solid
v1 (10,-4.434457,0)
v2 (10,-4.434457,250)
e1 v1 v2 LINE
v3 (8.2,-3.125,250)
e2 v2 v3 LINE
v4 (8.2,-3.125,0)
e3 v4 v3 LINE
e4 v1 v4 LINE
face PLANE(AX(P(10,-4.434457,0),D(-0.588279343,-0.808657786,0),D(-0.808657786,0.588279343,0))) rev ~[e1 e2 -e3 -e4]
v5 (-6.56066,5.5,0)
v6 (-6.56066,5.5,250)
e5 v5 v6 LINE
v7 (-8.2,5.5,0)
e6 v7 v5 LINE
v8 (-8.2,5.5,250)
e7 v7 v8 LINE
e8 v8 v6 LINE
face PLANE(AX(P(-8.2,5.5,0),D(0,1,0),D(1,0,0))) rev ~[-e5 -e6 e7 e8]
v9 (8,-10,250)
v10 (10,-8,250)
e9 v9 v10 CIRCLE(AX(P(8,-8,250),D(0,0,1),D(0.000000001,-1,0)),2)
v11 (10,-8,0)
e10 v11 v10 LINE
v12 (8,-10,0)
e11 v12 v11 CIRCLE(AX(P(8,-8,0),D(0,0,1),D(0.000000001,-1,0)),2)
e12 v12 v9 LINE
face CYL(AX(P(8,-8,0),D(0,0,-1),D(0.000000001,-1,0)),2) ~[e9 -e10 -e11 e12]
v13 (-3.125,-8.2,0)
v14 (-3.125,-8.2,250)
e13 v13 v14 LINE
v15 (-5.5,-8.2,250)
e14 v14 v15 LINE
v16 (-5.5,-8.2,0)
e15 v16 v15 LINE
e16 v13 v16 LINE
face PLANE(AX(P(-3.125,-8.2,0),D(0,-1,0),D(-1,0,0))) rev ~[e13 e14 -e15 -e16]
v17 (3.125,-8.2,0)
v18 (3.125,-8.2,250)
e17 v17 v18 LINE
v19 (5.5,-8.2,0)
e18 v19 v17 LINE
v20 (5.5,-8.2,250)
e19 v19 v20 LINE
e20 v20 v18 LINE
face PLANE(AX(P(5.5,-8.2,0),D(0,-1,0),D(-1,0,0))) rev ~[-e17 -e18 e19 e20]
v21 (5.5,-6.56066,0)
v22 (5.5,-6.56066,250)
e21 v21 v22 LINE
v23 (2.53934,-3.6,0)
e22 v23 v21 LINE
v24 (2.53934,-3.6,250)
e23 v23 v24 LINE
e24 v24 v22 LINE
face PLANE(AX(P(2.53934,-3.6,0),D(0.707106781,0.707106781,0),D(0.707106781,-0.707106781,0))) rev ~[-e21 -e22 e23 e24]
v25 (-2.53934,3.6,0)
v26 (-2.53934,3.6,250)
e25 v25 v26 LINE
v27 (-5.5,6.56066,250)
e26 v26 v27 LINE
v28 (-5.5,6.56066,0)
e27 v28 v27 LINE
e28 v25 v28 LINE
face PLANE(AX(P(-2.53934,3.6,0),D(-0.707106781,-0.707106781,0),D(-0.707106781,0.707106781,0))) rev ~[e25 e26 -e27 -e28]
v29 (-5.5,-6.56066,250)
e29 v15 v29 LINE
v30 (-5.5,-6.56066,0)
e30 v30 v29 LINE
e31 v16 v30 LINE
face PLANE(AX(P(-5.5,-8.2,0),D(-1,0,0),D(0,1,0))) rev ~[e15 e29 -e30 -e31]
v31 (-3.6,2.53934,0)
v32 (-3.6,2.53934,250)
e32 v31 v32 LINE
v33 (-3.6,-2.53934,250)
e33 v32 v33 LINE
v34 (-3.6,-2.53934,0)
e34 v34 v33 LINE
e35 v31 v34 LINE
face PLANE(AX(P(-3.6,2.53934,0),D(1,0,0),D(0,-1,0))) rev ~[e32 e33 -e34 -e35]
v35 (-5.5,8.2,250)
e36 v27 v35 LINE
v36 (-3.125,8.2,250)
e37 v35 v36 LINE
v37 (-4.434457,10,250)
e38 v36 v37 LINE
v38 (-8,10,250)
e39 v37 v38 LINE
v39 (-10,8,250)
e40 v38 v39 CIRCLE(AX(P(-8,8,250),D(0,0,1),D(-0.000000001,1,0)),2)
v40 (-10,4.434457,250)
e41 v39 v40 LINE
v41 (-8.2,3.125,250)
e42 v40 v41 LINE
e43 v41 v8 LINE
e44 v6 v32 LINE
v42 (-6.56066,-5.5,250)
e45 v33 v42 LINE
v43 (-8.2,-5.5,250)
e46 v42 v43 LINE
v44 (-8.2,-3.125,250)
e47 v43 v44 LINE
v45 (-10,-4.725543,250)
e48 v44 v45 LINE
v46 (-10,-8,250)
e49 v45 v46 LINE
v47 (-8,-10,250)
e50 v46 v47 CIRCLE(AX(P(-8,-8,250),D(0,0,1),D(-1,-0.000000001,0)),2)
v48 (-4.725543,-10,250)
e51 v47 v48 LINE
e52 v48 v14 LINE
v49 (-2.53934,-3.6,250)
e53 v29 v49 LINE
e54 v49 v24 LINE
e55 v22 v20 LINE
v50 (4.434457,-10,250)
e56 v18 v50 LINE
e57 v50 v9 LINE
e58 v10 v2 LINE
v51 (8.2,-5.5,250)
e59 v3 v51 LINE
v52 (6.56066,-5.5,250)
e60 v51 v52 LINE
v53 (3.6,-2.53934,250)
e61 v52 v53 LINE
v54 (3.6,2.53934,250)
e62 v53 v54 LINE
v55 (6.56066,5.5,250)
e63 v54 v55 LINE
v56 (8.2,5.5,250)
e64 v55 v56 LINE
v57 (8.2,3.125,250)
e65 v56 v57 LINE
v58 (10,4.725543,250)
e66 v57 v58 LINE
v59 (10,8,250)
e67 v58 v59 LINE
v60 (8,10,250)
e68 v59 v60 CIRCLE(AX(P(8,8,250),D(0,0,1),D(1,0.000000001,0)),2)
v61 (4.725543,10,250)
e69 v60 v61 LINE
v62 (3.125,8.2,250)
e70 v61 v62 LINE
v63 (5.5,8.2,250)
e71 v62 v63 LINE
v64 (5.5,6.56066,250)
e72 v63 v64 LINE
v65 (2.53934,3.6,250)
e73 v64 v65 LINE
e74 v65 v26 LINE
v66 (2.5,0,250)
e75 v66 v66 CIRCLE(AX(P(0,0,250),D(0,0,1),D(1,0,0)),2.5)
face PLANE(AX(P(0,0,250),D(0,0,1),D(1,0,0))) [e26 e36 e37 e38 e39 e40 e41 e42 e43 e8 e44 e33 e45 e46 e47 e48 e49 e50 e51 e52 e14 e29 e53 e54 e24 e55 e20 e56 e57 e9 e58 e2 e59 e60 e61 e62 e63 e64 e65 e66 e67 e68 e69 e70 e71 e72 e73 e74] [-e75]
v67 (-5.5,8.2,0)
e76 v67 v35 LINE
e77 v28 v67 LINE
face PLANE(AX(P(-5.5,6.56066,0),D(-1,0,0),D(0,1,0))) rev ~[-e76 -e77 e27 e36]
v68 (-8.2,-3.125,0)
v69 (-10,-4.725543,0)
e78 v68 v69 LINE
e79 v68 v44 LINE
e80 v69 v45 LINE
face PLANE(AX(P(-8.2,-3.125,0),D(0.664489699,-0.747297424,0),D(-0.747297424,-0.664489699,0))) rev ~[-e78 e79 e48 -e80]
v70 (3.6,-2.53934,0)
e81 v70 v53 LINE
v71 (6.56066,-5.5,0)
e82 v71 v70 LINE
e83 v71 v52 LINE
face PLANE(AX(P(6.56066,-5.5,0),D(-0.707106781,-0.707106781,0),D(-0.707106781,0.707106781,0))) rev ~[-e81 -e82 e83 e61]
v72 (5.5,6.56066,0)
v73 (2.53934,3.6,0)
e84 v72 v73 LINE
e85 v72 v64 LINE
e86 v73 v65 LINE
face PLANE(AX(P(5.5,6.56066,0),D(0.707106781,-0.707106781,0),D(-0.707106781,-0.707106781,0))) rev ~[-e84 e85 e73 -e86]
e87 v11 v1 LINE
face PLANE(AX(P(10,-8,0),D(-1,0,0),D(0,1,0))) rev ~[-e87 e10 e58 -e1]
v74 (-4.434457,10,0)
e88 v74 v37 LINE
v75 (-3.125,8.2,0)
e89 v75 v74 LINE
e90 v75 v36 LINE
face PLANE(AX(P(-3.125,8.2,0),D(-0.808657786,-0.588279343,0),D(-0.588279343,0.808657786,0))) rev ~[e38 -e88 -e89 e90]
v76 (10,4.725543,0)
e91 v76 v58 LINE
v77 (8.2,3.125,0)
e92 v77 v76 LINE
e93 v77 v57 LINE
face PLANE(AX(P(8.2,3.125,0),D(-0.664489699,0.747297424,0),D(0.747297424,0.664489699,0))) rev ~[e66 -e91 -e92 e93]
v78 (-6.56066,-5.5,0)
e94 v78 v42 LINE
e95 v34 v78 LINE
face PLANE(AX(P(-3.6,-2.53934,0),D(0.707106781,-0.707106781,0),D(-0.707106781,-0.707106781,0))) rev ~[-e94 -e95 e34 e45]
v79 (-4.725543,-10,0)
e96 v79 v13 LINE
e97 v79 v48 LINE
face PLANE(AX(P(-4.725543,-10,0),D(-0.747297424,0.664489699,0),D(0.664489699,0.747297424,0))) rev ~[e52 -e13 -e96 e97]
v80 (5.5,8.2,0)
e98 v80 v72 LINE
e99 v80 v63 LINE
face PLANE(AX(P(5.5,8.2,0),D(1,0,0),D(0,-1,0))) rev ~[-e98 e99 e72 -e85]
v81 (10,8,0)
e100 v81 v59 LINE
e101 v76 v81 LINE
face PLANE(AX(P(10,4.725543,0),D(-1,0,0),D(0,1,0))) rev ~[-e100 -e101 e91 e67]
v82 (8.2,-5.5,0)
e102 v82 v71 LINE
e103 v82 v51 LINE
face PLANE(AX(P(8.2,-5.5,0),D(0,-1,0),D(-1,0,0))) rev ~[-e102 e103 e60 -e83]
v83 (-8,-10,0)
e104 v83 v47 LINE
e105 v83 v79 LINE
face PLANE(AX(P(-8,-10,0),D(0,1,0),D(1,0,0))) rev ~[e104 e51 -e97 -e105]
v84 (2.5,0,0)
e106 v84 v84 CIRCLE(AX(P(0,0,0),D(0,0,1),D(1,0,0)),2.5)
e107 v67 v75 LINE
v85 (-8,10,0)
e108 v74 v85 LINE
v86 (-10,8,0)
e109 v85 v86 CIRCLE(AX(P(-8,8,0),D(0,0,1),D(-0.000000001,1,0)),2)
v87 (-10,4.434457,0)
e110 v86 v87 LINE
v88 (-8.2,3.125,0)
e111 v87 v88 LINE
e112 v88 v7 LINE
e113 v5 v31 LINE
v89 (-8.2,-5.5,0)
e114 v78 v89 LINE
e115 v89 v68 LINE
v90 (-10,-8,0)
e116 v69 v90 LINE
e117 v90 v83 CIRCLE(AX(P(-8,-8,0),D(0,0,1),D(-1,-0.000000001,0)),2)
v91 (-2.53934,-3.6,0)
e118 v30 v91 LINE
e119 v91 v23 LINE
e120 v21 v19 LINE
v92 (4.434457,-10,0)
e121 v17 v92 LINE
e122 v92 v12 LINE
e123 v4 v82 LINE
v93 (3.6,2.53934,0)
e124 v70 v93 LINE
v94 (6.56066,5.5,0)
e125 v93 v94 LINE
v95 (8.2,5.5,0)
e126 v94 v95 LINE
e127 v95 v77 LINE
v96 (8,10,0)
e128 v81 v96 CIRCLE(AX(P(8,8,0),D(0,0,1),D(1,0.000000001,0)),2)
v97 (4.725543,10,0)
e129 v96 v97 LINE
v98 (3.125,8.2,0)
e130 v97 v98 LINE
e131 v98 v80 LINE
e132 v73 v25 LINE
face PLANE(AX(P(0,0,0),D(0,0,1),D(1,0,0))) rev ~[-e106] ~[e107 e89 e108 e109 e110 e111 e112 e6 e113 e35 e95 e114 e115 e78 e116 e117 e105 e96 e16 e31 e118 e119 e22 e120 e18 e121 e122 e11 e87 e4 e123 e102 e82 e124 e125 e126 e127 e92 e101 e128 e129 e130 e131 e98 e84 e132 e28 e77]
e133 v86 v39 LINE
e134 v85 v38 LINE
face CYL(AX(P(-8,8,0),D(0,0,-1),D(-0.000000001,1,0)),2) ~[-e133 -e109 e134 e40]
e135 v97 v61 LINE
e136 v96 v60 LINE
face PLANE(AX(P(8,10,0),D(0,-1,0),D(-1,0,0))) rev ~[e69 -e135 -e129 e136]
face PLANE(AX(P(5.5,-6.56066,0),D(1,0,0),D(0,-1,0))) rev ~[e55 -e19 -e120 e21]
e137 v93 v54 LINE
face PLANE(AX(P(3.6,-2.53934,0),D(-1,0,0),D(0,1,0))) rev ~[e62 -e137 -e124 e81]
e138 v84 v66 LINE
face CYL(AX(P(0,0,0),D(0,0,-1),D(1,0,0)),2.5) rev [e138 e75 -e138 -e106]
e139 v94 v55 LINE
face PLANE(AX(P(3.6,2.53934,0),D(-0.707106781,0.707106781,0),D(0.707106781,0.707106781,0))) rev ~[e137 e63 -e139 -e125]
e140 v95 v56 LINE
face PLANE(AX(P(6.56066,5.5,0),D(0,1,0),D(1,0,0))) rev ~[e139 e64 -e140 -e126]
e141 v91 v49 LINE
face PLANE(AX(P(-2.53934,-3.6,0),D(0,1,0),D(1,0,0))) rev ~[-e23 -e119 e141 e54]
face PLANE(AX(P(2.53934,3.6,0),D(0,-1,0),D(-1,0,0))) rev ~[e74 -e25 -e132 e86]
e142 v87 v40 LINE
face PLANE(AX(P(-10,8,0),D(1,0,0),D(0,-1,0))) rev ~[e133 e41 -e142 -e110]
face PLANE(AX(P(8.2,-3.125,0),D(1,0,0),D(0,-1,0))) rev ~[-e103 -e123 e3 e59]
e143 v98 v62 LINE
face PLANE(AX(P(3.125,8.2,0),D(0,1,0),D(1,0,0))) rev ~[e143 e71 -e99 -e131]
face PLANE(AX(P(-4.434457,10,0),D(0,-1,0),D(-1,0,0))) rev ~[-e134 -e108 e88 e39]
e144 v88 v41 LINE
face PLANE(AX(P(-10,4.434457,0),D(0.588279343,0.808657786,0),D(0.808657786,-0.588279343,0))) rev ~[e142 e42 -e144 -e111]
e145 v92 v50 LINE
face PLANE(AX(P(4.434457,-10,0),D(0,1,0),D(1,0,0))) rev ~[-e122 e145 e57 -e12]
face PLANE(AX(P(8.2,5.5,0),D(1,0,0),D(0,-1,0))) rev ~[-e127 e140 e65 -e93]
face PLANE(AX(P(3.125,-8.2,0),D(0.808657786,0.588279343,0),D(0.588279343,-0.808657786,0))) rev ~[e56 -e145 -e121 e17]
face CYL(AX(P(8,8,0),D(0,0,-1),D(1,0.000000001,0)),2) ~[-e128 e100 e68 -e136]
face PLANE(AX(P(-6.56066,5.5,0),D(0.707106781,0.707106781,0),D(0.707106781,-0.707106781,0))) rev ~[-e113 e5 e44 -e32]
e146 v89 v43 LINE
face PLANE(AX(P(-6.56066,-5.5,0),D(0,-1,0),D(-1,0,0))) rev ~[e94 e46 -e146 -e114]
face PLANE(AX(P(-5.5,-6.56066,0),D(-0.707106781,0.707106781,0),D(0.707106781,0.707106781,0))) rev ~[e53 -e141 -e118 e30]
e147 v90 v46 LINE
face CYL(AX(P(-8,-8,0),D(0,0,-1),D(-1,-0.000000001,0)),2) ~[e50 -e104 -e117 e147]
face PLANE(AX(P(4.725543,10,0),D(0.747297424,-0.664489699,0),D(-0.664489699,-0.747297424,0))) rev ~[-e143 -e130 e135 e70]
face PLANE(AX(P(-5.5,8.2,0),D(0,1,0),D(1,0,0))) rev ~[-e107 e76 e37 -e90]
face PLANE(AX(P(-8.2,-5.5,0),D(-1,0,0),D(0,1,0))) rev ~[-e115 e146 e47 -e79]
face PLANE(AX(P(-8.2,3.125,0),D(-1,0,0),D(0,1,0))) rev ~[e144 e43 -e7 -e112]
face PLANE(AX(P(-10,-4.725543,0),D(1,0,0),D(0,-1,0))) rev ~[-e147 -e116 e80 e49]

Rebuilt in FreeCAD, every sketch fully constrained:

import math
import FreeCAD as App
import Part
import Sketcher

V = App.Vector
Q = App.Units.Quantity

doc = App.newDocument("Part")
body = doc.addObject("PartDesign::Body", "Body")

# Sketch on XY plane
sketch1 = doc.addObject("Sketcher::SketchObject", "Sketch")
body.addObject(sketch1)
sketch1.AttachmentSupport = (doc.XY_Plane, [""])
sketch1.MapMode = "FlatFace"
sketch1.addGeometry([
    Part.LineSegment(V(-4.725543, -10, 0), V(-3.125, -8.2, 0)),  # 0
    Part.LineSegment(V(-3.125, -8.2, 0), V(-5.5, -8.2, 0)),  # 1
    Part.LineSegment(V(-5.5, -8.2, 0), V(-5.5, -6.56066, 0)),  # 2
    Part.LineSegment(V(-5.5, -6.56066, 0), V(-2.53934, -3.6, 0)),  # 3
    Part.LineSegment(V(-2.53934, -3.6, 0), V(2.53934, -3.6, 0)),  # 4
    Part.LineSegment(V(2.53934, -3.6, 0), V(5.5, -6.56066, 0)),  # 5
    Part.LineSegment(V(5.5, -6.56066, 0), V(5.5, -8.2, 0)),  # 6
    Part.LineSegment(V(5.5, -8.2, 0), V(3.125, -8.2, 0)),  # 7
    Part.LineSegment(V(3.125, -8.2, 0), V(4.434457, -10, 0)),  # 8
    Part.LineSegment(V(4.434457, -10, 0), V(8, -10, 0)),  # 9
    Part.ArcOfCircle(Part.Circle(V(8, -8, 0), V(0, 0, 1), 2), math.radians(-90), math.radians(0)),  # 10
    Part.LineSegment(V(10, -8, 0), V(10, -4.434457, 0)),  # 11
    Part.LineSegment(V(10, -4.434457, 0), V(8.2, -3.125, 0)),  # 12
    Part.LineSegment(V(8.2, -3.125, 0), V(8.2, -5.5, 0)),  # 13
    Part.LineSegment(V(8.2, -5.5, 0), V(6.56066, -5.5, 0)),  # 14
    Part.LineSegment(V(6.56066, -5.5, 0), V(3.6, -2.53934, 0)),  # 15
    Part.LineSegment(V(3.6, -2.53934, 0), V(3.6, 2.53934, 0)),  # 16
    Part.LineSegment(V(3.6, 2.53934, 0), V(6.56066, 5.5, 0)),  # 17
    Part.LineSegment(V(6.56066, 5.5, 0), V(8.2, 5.5, 0)),  # 18
    Part.LineSegment(V(8.2, 5.5, 0), V(8.2, 3.125, 0)),  # 19
    Part.LineSegment(V(8.2, 3.125, 0), V(10, 4.725543, 0)),  # 20
    Part.LineSegment(V(10, 4.725543, 0), V(10, 8, 0)),  # 21
    Part.ArcOfCircle(Part.Circle(V(8, 8, 0), V(0, 0, 1), 2), math.radians(0), math.radians(90)),  # 22
    Part.LineSegment(V(8, 10, 0), V(4.725543, 10, 0)),  # 23
    Part.LineSegment(V(4.725543, 10, 0), V(3.125, 8.2, 0)),  # 24
    Part.LineSegment(V(3.125, 8.2, 0), V(5.5, 8.2, 0)),  # 25
    Part.LineSegment(V(5.5, 8.2, 0), V(5.5, 6.56066, 0)),  # 26
    Part.LineSegment(V(5.5, 6.56066, 0), V(2.53934, 3.6, 0)),  # 27
    Part.LineSegment(V(2.53934, 3.6, 0), V(-2.53934, 3.6, 0)),  # 28
    Part.LineSegment(V(-2.53934, 3.6, 0), V(-5.5, 6.56066, 0)),  # 29
    Part.LineSegment(V(-5.5, 6.56066, 0), V(-5.5, 8.2, 0)),  # 30
    Part.LineSegment(V(-5.5, 8.2, 0), V(-3.125, 8.2, 0)),  # 31
    Part.LineSegment(V(-3.125, 8.2, 0), V(-4.434457, 10, 0)),  # 32
    Part.LineSegment(V(-4.434457, 10, 0), V(-8, 10, 0)),  # 33
    Part.ArcOfCircle(Part.Circle(V(-8, 8, 0), V(0, 0, 1), 2), math.radians(90), math.radians(180)),  # 34
    Part.LineSegment(V(-10, 8, 0), V(-10, 4.434457, 0)),  # 35
    Part.LineSegment(V(-10, 4.434457, 0), V(-8.2, 3.125, 0)),  # 36
    Part.LineSegment(V(-8.2, 3.125, 0), V(-8.2, 5.5, 0)),  # 37
    Part.LineSegment(V(-8.2, 5.5, 0), V(-6.56066, 5.5, 0)),  # 38
    Part.LineSegment(V(-6.56066, 5.5, 0), V(-3.6, 2.53934, 0)),  # 39
    Part.LineSegment(V(-3.6, 2.53934, 0), V(-3.6, -2.53934, 0)),  # 40
    Part.LineSegment(V(-3.6, -2.53934, 0), V(-6.56066, -5.5, 0)),  # 41
    Part.LineSegment(V(-6.56066, -5.5, 0), V(-8.2, -5.5, 0)),  # 42
    Part.LineSegment(V(-8.2, -5.5, 0), V(-8.2, -3.125, 0)),  # 43
    Part.LineSegment(V(-8.2, -3.125, 0), V(-10, -4.725543, 0)),  # 44
    Part.LineSegment(V(-10, -4.725543, 0), V(-10, -8, 0)),  # 45
    Part.ArcOfCircle(Part.Circle(V(-8, -8, 0), V(0, 0, 1), 2), math.radians(-180), math.radians(-90)),  # 46
    Part.LineSegment(V(-8, -10, 0), V(-4.725543, -10, 0)),  # 47
    Part.Circle(V(0, 0, 0), V(0, 0, 1), 2.5),  # 48
], False)
sketch1.addConstraint([
    Sketcher.Constraint("Coincident", 0, 2, 1, 1),
    Sketcher.Constraint("Coincident", 1, 2, 2, 1),
    Sketcher.Constraint("Coincident", 2, 2, 3, 1),
    Sketcher.Constraint("Coincident", 3, 2, 4, 1),
    Sketcher.Constraint("Coincident", 4, 2, 5, 1),
    Sketcher.Constraint("Coincident", 5, 2, 6, 1),
    Sketcher.Constraint("Coincident", 6, 2, 7, 1),
    Sketcher.Constraint("Coincident", 7, 2, 8, 1),
    Sketcher.Constraint("Coincident", 8, 2, 9, 1),
    Sketcher.Constraint("Tangent", 9, 2, 10, 1),
    Sketcher.Constraint("Tangent", 10, 2, 11, 1),
    Sketcher.Constraint("Coincident", 11, 2, 12, 1),
    Sketcher.Constraint("Coincident", 12, 2, 13, 1),
    Sketcher.Constraint("Coincident", 13, 2, 14, 1),
    Sketcher.Constraint("Coincident", 14, 2, 15, 1),
    Sketcher.Constraint("Coincident", 15, 2, 16, 1),
    Sketcher.Constraint("Coincident", 16, 2, 17, 1),
    Sketcher.Constraint("Coincident", 17, 2, 18, 1),
    Sketcher.Constraint("Coincident", 18, 2, 19, 1),
    Sketcher.Constraint("Coincident", 19, 2, 20, 1),
    Sketcher.Constraint("Coincident", 20, 2, 21, 1),
    Sketcher.Constraint("Tangent", 21, 2, 22, 1),
    Sketcher.Constraint("Tangent", 22, 2, 23, 1),
    Sketcher.Constraint("Coincident", 23, 2, 24, 1),
    Sketcher.Constraint("Coincident", 24, 2, 25, 1),
    Sketcher.Constraint("Coincident", 25, 2, 26, 1),
    Sketcher.Constraint("Coincident", 26, 2, 27, 1),
    Sketcher.Constraint("Coincident", 27, 2, 28, 1),
    Sketcher.Constraint("Coincident", 28, 2, 29, 1),
    Sketcher.Constraint("Coincident", 29, 2, 30, 1),
    Sketcher.Constraint("Coincident", 30, 2, 31, 1),
    Sketcher.Constraint("Coincident", 31, 2, 32, 1),
    Sketcher.Constraint("Coincident", 32, 2, 33, 1),
    Sketcher.Constraint("Tangent", 33, 2, 34, 1),
    Sketcher.Constraint("Tangent", 34, 2, 35, 1),
    Sketcher.Constraint("Coincident", 35, 2, 36, 1),
    Sketcher.Constraint("Coincident", 36, 2, 37, 1),
    Sketcher.Constraint("Coincident", 37, 2, 38, 1),
    Sketcher.Constraint("Coincident", 38, 2, 39, 1),
    Sketcher.Constraint("Coincident", 39, 2, 40, 1),
    Sketcher.Constraint("Coincident", 40, 2, 41, 1),
    Sketcher.Constraint("Coincident", 41, 2, 42, 1),
    Sketcher.Constraint("Coincident", 42, 2, 43, 1),
    Sketcher.Constraint("Coincident", 43, 2, 44, 1),
    Sketcher.Constraint("Coincident", 44, 2, 45, 1),
    Sketcher.Constraint("Tangent", 45, 2, 46, 1),
    Sketcher.Constraint("Tangent", 46, 2, 47, 1),
    Sketcher.Constraint("Coincident", 47, 2, 0, 1),
    Sketcher.Constraint("Horizontal", 1),
    Sketcher.Constraint("Vertical", 2),
    Sketcher.Constraint("Horizontal", 4),
    Sketcher.Constraint("Vertical", 6),
    Sketcher.Constraint("Horizontal", 7),
    Sketcher.Constraint("Horizontal", 9),
    Sketcher.Constraint("Vertical", 11),
    Sketcher.Constraint("Vertical", 13),
    Sketcher.Constraint("Horizontal", 14),
    Sketcher.Constraint("Vertical", 16),
    Sketcher.Constraint("Horizontal", 18),
    Sketcher.Constraint("Vertical", 19),
    Sketcher.Constraint("Vertical", 21),
    Sketcher.Constraint("Horizontal", 23),
    Sketcher.Constraint("Horizontal", 25),
    Sketcher.Constraint("Vertical", 26),
    Sketcher.Constraint("Horizontal", 28),
    Sketcher.Constraint("Vertical", 30),
    Sketcher.Constraint("Horizontal", 31),
    Sketcher.Constraint("Horizontal", 33),
    Sketcher.Constraint("Vertical", 35),
    Sketcher.Constraint("Vertical", 37),
    Sketcher.Constraint("Horizontal", 38),
    Sketcher.Constraint("Vertical", 40),
    Sketcher.Constraint("Horizontal", 42),
    Sketcher.Constraint("Vertical", 43),
    Sketcher.Constraint("Vertical", 45),
    Sketcher.Constraint("Horizontal", 47),
    Sketcher.Constraint("Coincident", 48, 3, -1, 1),
    Sketcher.Constraint("Equal", 10, 22),
    Sketcher.Constraint("Equal", 22, 34),
    Sketcher.Constraint("Equal", 34, 46),
    Sketcher.Constraint("Symmetric", 10, 3, 34, 3, -1, 1),
    Sketcher.Constraint("Symmetric", 22, 3, 46, 3, -1, 1),
    Sketcher.Constraint("Symmetric", 0, 2, 24, 2, -1, 1),
    Sketcher.Constraint("Symmetric", 2, 2, 26, 2, -1, 1),
    Sketcher.Constraint("Symmetric", 3, 2, 27, 2, -1, 1),
    Sketcher.Constraint("Symmetric", 5, 2, 29, 2, -1, 1),
    Sketcher.Constraint("Symmetric", 7, 2, 31, 2, -1, 1),
    Sketcher.Constraint("Symmetric", 12, 2, 36, 2, -1, 1),
    Sketcher.Constraint("Symmetric", 14, 2, 38, 2, -1, 1),
    Sketcher.Constraint("Symmetric", 15, 2, 39, 2, -1, 1),
    Sketcher.Constraint("Symmetric", 17, 2, 41, 2, -1, 1),
    Sketcher.Constraint("Symmetric", 19, 2, 43, 2, -1, 1),
    Sketcher.Constraint("Symmetric", 22, 3, 34, 3, -2),
    Sketcher.Constraint("Symmetric", 2, 2, 5, 2, -2),
    Sketcher.Constraint("Symmetric", 0, 2, 7, 2, -2),
    Sketcher.Constraint("Symmetric", 19, 2, 36, 2, -2),
    Sketcher.Constraint("Symmetric", 17, 2, 38, 2, -2),
    Sketcher.Constraint("Perpendicular", 3, 5),
    Sketcher.Constraint("Parallel", 5, 15),
    Sketcher.Constraint("Perpendicular", 15, 17),
    Sketcher.Constraint("Parallel", 0, 24),
    Sketcher.Constraint("Perpendicular", 27, 29),
    Sketcher.Constraint("Parallel", 8, 32),
    Sketcher.Constraint("Parallel", 12, 36),
    Sketcher.Constraint("Perpendicular", 39, 41),
    Sketcher.Constraint("Parallel", 20, 44),
    Sketcher.Constraint("Horizontal", 16, 2, 39, 2),
    Sketcher.Constraint("Equal", 42, 2),
    Sketcher.Constraint("Equal", 33, 11),
    Sketcher.Constraint("Equal", 31, 13),
    Sketcher.Constraint("Equal", 28, 16),
    Sketcher.Constraint("Equal", 47, 21),
    Sketcher.Constraint("Equal", 8, 12),
    Sketcher.Constraint("Equal", 5, 15),
    Sketcher.Constraint("Equal", 0, 20),
    Sketcher.Constraint("Diameter", 48, Q("5 mm")),
    Sketcher.Constraint("Radius", 10, Q("2 mm")),
    Sketcher.Constraint("DistanceX", -1, 1, 10, 3, Q("8 mm")),
    Sketcher.Constraint("DistanceY", 0, 2, -1, 1, Q("8.2 mm")),
    Sketcher.Constraint("DistanceX", 1, 2, -1, 1, Q("5.5 mm")),
    Sketcher.Constraint("DistanceY", 3, 2, -1, 1, Q("3.6 mm")),
    Sketcher.Constraint("DistanceX", 1, 2, 1, 1, Q("2.375 mm")),
    Sketcher.Constraint("DistanceX", 4, 1, 4, 2, Q("5.07868 mm")),
    Sketcher.Constraint("Distance", 0, Q("2.40868 mm")),
    Sketcher.Constraint("Distance", 8, Q("2.225911 mm")),
])
pad1 = doc.addObject("PartDesign::Pad", "Pad")
body.addObject(pad1)
pad1.Profile = sketch1
pad1.Length = 250

doc.recompute()
